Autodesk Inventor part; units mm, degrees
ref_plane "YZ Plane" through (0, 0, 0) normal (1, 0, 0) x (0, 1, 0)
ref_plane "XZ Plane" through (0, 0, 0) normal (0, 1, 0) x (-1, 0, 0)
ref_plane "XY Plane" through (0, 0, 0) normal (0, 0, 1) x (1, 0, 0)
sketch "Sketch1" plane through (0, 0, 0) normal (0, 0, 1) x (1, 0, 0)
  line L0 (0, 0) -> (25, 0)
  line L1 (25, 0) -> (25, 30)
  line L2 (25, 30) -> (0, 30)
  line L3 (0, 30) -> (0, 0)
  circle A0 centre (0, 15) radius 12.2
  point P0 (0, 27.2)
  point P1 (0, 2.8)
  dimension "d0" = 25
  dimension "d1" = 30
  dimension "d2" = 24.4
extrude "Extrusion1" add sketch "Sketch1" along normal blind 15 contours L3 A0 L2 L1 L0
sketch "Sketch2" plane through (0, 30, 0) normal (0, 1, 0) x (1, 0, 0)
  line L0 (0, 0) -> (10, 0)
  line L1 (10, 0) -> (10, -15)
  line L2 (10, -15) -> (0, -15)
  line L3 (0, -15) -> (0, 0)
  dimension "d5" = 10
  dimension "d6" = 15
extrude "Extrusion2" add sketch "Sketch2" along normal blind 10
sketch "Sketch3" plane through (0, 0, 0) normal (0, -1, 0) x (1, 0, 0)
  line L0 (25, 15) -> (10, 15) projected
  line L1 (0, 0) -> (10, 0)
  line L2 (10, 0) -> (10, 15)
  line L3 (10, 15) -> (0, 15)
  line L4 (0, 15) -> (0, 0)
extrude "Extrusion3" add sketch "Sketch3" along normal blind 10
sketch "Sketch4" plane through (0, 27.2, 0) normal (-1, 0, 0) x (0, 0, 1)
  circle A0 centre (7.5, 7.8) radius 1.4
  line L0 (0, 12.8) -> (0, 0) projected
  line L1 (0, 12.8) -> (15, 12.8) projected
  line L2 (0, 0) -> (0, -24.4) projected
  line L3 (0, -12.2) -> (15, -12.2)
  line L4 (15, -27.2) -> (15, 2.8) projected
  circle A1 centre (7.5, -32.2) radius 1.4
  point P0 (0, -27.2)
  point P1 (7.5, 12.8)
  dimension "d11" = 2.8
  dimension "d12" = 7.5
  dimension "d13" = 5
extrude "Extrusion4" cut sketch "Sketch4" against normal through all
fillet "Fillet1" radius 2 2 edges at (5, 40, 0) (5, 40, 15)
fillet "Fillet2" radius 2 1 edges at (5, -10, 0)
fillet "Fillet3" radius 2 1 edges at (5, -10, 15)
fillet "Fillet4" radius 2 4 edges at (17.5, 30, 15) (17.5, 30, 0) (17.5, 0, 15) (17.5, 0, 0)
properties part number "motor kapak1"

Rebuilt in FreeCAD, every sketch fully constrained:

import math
import FreeCAD as App
import Part
import Sketcher

V = App.Vector


def edges_at(feature, points):
    """Names of the edges that pass closest to the given points."""
    edges = feature.Shape.Edges
    near = lambda p: min(range(len(edges)), key=lambda i: edges[i].distToShape(Part.Vertex(*p))[0])
    return sorted({f"Edge{near(p) + 1}" for p in points})


def add_polygon(sketch, points):
    """Adds a closed chain of lines whose ends are joined by coincident constraints."""
    first, n = sketch.GeometryCount, len(points)
    for a, b in zip(points, points[1:] + points[:1]):
        sketch.addGeometry(Part.LineSegment(App.Vector(*a, 0), App.Vector(*b, 0)), False)
    for i in range(n):
        sketch.addConstraint(Sketcher.Constraint("Coincident", first + i, 2, first + (i + 1) % n, 1))

doc = App.newDocument("Part")
body = doc.addObject("PartDesign::Body", "Body")

sketch1 = body.newObject("Sketcher::SketchObject", "Sketch")
sketch1.AttachmentSupport = (doc.getObject("XY_Plane"), [""])
sketch1.MapMode = "FlatFace"
sketch1.addGeometry([
    Part.LineSegment(V(0, 2.8, 0), V(0, 0, 0)),
    Part.LineSegment(V(0, 0, 0), V(25, 0, 0)),
    Part.LineSegment(V(25, 0, 0), V(25, 30, 0)),
    Part.LineSegment(V(25, 30, 0), V(0, 30, 0)),
    Part.LineSegment(V(0, 30, 0), V(0, 27.2, 0)),
    Part.ArcOfCircle(Part.Circle(V(0, 15, 0), V(0, 0, 1), 12.2), math.radians(-90), math.radians(90)),
], False)
sketch1.addConstraint([
    Sketcher.Constraint("Coincident", 0, 2, 1, 1),
    Sketcher.Constraint("Coincident", 1, 2, 2, 1),
    Sketcher.Constraint("Coincident", 2, 2, 3, 1),
    Sketcher.Constraint("Coincident", 3, 2, 4, 1),
    Sketcher.Constraint("Coincident", 4, 2, 5, 2),
    Sketcher.Constraint("Coincident", 5, 1, 0, 1),
    Sketcher.Constraint("Vertical", 0),
    Sketcher.Constraint("Horizontal", 1),
    Sketcher.Constraint("Vertical", 2),
    Sketcher.Constraint("Horizontal", 3),
    Sketcher.Constraint("Vertical", 4),
    Sketcher.Constraint("Coincident", 0, 2, -1, 1),
    Sketcher.Constraint("PointOnObject", 5, 3, -2),
    Sketcher.Constraint("PointOnObject", 3, 2, -2),
    Sketcher.Constraint("Equal", 0, 4),
    Sketcher.Constraint("Radius", 5, 12.2),
    Sketcher.Constraint("DistanceX", 1, 1, 1, 2, 25.0),
    Sketcher.Constraint("DistanceY", 2, 1, 2, 2, 30.0),
])
pad1 = body.newObject("PartDesign::Pad", "Pad")
pad1.Profile = sketch1
pad1.Length = 15

sketch2 = body.newObject("Sketcher::SketchObject", "Sketch001")
sketch2.AttachmentSupport = (doc.getObject("XZ_Plane"), [""])
sketch2.MapMode = "FlatFace"
sketch2.AttachmentOffset = App.Placement(V(0, 0, -30), App.Rotation())
add_polygon(sketch2, [(10, 0), (0, 0), (0, 15), (10, 15)])
sketch2.addConstraint([
    Sketcher.Constraint("Horizontal", 0),
    Sketcher.Constraint("Vertical", 1),
    Sketcher.Constraint("Horizontal", 2),
    Sketcher.Constraint("Vertical", 3),
    Sketcher.Constraint("Coincident", 0, 2, -1, 1),
    Sketcher.Constraint("DistanceX", 0, 2, 0, 1, 10.0),
    Sketcher.Constraint("DistanceY", 1, 1, 1, 2, 15.0),
])
pad2 = body.newObject("PartDesign::Pad", "Pad001")
pad2.Profile = sketch2
pad2.Length = 10
pad2.Reversed = True

sketch3 = body.newObject("Sketcher::SketchObject", "Sketch002")
sketch3.AttachmentSupport = (doc.getObject("XZ_Plane"), [""])
sketch3.MapMode = "FlatFace"
add_polygon(sketch3, [(0, 15), (0, 0), (10, 0), (10, 15)])
sketch3.addConstraint([
    Sketcher.Constraint("Vertical", 0),
    Sketcher.Constraint("Horizontal", 1),
    Sketcher.Constraint("Vertical", 2),
    Sketcher.Constraint("Horizontal", 3),
    Sketcher.Constraint("Coincident", 0, 2, -1, 1),
    Sketcher.Constraint("DistanceX", 1, 1, 1, 2, 10.0),
    Sketcher.Constraint("DistanceY", 0, 2, 0, 1, 15.0),
])
pad3 = body.newObject("PartDesign::Pad", "Pad002")
pad3.Profile = sketch3
pad3.Length = 10

sketch4 = body.newObject("Sketcher::SketchObject", "Sketch003")
sketch4.AttachmentSupport = (doc.getObject("YZ_Plane"), [""])
sketch4.MapMode = "FlatFace"
sketch4.addGeometry([
    Part.Circle(V(35, 7.5, 0), V(0, 0, 1), 1.4),
    Part.Circle(V(-5, 7.5, 0), V(0, 0, 1), 1.4),
], False)
sketch4.addConstraint([
    Sketcher.Constraint("Equal", 0, 1),
    Sketcher.Constraint("Horizontal", 0, 3, 1, 3),
    Sketcher.Constraint("Diameter", 0, 2.8),
    Sketcher.Constraint("DistanceX", 1, 3, -1, 1, 5.0),
    Sketcher.Constraint("DistanceY", -1, 1, 0, 3, 7.5),
    Sketcher.Constraint("DistanceX", -1, 1, 0, 3, 35.0),
])
pocket1 = body.newObject("PartDesign::Pocket", "Pocket")
pocket1.Profile = sketch4
pocket1.Type = "ThroughAll"
pocket1.Reversed = True
doc.recompute()

fillet = body.newObject("PartDesign::Fillet", "Fillet")
fillet.Base = (pocket1, edges_at(pocket1, [(5, 40, 0), (5, 40, 15)]))
fillet.Radius = 2
doc.recompute()

fillet2 = body.newObject("PartDesign::Fillet", "Fillet001")
fillet2.Base = (fillet, edges_at(fillet, [(5, -10, 0)]))
fillet2.Radius = 2
doc.recompute()

fillet3 = body.newObject("PartDesign::Fillet", "Fillet002")
fillet3.Base = (fillet2, edges_at(fillet2, [(5, -10, 15)]))
fillet3.Radius = 2
doc.recompute()

fillet4 = body.newObject("PartDesign::Fillet", "Fillet003")
fillet4.Base = (fillet3, edges_at(fillet3, [
    (17.5, 30, 15),
    (17.5, 30, 0),
    (17.5, 0, 15),
    (17.5, 0, 0),
]))
fillet4.Radius = 2

doc.recompute()
